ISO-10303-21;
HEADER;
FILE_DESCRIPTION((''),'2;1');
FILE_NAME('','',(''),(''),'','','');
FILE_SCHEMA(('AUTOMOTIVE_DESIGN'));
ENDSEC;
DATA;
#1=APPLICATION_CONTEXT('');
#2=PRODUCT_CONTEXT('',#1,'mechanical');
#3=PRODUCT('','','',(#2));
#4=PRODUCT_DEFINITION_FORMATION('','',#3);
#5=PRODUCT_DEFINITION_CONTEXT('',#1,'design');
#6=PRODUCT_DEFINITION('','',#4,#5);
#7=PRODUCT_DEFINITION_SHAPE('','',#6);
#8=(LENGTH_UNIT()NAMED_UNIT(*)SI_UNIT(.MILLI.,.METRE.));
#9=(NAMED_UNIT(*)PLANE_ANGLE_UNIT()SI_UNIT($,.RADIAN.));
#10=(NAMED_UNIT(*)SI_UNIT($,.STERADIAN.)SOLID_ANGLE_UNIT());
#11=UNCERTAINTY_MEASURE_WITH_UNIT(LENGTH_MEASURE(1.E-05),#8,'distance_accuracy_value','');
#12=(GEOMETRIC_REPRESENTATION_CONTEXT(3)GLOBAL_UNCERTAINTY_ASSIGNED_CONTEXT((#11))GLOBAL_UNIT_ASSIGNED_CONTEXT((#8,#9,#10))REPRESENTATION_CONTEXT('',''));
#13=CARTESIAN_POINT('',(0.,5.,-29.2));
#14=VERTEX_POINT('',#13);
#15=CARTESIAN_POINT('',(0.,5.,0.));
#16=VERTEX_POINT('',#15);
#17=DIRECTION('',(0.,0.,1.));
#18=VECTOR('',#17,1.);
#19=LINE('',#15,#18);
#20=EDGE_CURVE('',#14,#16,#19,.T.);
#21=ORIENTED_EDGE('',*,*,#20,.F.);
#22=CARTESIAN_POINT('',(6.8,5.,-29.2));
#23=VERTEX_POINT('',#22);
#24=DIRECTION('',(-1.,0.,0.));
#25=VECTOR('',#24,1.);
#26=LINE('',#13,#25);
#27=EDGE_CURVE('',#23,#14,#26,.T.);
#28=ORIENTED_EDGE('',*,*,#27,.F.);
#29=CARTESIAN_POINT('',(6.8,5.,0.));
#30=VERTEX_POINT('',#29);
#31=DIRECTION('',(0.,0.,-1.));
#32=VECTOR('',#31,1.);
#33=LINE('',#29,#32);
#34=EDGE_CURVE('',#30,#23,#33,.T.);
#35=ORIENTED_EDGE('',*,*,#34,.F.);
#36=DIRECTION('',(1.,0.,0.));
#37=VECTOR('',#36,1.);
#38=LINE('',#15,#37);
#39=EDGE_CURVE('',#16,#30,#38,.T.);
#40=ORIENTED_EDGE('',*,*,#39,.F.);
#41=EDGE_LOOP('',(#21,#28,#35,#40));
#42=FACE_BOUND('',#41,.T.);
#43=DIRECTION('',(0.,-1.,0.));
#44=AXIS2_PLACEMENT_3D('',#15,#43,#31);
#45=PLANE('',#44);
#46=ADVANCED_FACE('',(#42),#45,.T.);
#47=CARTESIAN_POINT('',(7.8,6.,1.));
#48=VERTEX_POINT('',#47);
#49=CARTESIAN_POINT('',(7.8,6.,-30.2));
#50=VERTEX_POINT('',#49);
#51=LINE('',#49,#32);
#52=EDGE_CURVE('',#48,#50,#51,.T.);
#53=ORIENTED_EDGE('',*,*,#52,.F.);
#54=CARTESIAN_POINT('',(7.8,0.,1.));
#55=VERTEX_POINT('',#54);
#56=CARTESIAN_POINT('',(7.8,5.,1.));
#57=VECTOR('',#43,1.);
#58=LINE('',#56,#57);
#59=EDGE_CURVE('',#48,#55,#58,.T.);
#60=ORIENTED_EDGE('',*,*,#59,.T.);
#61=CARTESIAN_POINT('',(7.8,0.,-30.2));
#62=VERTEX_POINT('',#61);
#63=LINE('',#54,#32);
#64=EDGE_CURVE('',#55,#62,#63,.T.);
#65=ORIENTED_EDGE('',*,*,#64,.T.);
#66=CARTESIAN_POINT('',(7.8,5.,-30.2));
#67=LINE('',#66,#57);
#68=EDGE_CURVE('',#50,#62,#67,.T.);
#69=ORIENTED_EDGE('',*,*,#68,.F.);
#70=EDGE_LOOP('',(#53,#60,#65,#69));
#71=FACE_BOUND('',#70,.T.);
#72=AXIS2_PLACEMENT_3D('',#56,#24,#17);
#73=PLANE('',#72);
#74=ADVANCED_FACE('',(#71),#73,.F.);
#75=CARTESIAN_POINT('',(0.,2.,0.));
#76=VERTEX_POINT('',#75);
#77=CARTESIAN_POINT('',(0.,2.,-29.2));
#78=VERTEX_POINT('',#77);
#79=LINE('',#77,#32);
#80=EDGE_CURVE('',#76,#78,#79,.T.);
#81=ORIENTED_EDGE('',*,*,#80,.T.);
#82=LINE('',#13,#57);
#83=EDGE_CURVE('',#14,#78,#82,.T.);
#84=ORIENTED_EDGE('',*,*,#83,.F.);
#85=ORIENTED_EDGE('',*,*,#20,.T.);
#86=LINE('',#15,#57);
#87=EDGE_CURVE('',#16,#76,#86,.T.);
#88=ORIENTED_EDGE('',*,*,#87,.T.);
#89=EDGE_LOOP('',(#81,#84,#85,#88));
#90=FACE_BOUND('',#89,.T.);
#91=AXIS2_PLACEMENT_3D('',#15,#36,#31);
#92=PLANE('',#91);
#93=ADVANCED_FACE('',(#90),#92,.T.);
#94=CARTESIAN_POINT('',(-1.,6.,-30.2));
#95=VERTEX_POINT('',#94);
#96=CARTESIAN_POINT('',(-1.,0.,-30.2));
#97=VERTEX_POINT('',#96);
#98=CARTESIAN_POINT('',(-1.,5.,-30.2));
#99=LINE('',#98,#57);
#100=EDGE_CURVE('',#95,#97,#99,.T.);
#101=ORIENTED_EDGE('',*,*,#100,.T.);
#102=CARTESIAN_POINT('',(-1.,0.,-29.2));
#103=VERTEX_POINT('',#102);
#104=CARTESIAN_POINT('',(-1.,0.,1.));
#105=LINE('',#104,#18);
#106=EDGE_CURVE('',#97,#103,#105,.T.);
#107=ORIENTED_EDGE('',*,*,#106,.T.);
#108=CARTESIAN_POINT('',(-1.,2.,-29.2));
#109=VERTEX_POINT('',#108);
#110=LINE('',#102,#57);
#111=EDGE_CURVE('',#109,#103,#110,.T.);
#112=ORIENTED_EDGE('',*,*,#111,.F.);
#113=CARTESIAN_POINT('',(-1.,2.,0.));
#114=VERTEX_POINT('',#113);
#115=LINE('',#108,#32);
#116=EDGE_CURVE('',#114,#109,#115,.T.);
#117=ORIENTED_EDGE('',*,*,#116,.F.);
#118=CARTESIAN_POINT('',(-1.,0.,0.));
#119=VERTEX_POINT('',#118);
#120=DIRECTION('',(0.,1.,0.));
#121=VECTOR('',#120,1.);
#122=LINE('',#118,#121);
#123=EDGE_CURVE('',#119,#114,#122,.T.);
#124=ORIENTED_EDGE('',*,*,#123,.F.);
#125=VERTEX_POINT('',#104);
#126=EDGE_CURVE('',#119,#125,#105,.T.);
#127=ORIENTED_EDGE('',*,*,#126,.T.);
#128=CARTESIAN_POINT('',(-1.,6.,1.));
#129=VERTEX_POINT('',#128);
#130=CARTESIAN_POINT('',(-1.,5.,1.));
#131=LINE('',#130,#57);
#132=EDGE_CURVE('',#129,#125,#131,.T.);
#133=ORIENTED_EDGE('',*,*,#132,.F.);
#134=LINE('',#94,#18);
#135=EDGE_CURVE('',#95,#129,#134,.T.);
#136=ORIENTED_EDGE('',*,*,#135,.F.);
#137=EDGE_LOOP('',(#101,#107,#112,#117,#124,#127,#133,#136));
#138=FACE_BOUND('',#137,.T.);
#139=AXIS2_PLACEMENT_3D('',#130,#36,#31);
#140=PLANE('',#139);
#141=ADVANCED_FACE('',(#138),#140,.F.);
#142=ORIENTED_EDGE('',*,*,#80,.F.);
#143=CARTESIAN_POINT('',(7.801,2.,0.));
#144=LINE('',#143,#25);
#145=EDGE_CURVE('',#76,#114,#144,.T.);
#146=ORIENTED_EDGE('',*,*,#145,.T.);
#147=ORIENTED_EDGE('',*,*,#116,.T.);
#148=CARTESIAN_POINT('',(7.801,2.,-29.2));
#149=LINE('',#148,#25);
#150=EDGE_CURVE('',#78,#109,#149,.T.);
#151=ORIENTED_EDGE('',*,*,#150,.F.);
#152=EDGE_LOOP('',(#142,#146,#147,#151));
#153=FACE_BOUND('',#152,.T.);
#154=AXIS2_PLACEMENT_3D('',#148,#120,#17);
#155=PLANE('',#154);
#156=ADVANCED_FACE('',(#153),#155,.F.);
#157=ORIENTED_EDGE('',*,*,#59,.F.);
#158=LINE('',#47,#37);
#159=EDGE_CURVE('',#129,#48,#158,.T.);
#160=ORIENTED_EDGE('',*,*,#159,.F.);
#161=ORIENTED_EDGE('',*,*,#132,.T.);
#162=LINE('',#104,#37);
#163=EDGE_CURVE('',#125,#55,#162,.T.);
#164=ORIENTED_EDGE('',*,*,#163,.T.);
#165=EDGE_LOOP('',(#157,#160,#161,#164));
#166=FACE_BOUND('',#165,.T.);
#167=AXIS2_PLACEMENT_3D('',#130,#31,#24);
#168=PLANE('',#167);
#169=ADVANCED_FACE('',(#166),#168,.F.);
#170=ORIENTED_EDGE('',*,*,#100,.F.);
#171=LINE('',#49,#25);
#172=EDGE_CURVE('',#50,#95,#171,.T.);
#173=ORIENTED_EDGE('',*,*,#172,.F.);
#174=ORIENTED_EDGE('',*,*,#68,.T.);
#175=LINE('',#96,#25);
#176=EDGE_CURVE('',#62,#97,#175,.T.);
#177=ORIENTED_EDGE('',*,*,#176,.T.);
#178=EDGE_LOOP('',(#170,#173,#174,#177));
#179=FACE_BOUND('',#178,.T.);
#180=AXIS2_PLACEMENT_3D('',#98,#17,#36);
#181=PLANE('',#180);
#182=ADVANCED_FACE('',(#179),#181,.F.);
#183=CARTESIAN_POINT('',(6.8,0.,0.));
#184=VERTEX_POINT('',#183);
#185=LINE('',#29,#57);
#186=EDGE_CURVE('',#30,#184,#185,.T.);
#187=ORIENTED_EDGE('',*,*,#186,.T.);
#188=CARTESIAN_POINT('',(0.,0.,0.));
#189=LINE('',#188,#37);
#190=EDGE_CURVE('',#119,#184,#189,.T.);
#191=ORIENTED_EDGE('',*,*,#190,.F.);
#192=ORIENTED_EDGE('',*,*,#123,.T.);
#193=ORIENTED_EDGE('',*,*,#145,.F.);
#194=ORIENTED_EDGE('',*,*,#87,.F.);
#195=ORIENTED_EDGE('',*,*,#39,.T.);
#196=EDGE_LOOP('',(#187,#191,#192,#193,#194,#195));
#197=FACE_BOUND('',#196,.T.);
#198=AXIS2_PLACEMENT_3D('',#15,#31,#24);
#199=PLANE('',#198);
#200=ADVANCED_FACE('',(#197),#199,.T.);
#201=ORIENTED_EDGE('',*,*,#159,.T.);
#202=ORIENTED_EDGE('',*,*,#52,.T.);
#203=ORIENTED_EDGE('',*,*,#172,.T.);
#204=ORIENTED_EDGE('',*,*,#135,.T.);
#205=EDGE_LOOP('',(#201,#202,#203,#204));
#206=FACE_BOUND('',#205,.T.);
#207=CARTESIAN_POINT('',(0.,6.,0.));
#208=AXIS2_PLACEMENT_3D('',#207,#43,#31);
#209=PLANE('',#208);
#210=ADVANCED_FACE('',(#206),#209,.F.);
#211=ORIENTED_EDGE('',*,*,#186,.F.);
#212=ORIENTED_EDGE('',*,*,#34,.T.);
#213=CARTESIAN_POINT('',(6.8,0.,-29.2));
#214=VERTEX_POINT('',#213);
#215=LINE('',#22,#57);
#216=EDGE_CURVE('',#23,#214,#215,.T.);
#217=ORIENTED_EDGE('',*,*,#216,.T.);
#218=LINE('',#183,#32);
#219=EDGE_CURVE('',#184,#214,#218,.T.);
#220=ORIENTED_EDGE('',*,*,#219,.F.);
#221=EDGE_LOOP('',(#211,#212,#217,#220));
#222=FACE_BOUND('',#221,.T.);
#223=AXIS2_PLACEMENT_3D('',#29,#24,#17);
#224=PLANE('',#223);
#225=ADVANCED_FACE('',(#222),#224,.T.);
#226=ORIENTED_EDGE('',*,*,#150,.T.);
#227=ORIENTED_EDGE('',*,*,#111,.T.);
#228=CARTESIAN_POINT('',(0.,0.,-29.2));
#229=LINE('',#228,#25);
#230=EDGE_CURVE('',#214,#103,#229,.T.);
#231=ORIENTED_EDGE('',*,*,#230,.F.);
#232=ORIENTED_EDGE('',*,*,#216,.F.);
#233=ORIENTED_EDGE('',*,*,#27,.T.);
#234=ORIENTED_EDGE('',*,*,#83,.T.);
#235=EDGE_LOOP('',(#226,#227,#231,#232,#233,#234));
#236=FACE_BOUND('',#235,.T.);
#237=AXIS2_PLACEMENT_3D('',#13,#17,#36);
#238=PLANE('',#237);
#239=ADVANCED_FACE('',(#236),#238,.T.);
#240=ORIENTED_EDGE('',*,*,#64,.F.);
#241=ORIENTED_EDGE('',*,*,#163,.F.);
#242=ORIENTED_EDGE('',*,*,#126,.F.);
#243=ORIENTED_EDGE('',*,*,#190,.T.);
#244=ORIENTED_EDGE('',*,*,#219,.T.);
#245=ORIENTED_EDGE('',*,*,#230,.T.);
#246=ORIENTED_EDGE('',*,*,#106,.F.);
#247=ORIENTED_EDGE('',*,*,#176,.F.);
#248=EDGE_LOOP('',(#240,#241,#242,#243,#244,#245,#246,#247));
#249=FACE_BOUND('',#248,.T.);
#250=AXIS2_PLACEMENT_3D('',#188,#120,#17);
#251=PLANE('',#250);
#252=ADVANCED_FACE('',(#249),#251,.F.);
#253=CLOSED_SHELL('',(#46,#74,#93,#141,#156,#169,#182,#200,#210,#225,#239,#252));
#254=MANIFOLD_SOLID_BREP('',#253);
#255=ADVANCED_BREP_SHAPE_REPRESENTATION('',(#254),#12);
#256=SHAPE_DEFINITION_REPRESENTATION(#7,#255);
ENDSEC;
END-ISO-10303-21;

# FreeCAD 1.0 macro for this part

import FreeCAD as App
import Part
import Sketcher

V = App.Vector

doc = App.newDocument("Part")
body = doc.addObject("PartDesign::Body", "Body")

sketch1 = doc.addObject("Sketcher::SketchObject", "Sketch")
body.addObject(sketch1)
sketch1.AttachmentSupport = (doc.XZ_Plane, [""])
sketch1.MapMode = "FlatFace"
sketch1.addGeometry(Part.LineSegment(V(-1, -30, 0), V(-1, 1, 0)), False)
sketch1.addGeometry(Part.LineSegment(V(-1, 1, 0), V(8, 1, 0)), False)
sketch1.addGeometry(Part.LineSegment(V(8, 1, 0), V(8, -30, 0)), False)
sketch1.addGeometry(Part.LineSegment(V(8, -30, 0), V(-1, -30, 0)), False)
sketch1.addGeometry(Part.LineSegment(V(7, 0, 0), V(0, 0, 0)), False)
sketch1.addGeometry(Part.LineSegment(V(0, 0, 0), V(0, -29, 0)), False)
sketch1.addGeometry(Part.LineSegment(V(0, -29, 0), V(7, -29, 0)), False)
sketch1.addGeometry(Part.LineSegment(V(7, -29, 0), V(7, 0, 0)), False)
sketch1.addConstraint(Sketcher.Constraint("Coincident", 0, 2, 1, 1))
sketch1.addConstraint(Sketcher.Constraint("Coincident", 1, 2, 2, 1))
sketch1.addConstraint(Sketcher.Constraint("Coincident", 2, 2, 3, 1))
sketch1.addConstraint(Sketcher.Constraint("Coincident", 3, 2, 0, 1))
sketch1.addConstraint(Sketcher.Constraint("Coincident", 4, 2, 5, 1))
sketch1.addConstraint(Sketcher.Constraint("Coincident", 5, 2, 6, 1))
sketch1.addConstraint(Sketcher.Constraint("Coincident", 6, 2, 7, 1))
sketch1.addConstraint(Sketcher.Constraint("Coincident", 7, 2, 4, 1))
sketch1.addConstraint(Sketcher.Constraint("Vertical", 0))
sketch1.addConstraint(Sketcher.Constraint("Horizontal", 1))
sketch1.addConstraint(Sketcher.Constraint("Vertical", 2))
sketch1.addConstraint(Sketcher.Constraint("Horizontal", 3))
sketch1.addConstraint(Sketcher.Constraint("Horizontal", 4))
sketch1.addConstraint(Sketcher.Constraint("Vertical", 5))
sketch1.addConstraint(Sketcher.Constraint("Horizontal", 6))
sketch1.addConstraint(Sketcher.Constraint("Vertical", 7))
sketch1.addConstraint(Sketcher.Constraint("Coincident", 4, 2, -1, 1))
sketch1.addConstraint(Sketcher.Constraint("DistanceX", 1, 1, 1, 2, 8.8))
sketch1.addConstraint(Sketcher.Constraint("DistanceX", 4, 2, 4, 1, 6.8))
sketch1.addConstraint(Sketcher.Constraint("DistanceY", 0, 1, 0, 2, 31.2))
sketch1.addConstraint(Sketcher.Constraint("DistanceY", 5, 2, 5, 1, 29.2))
sketch1.addConstraint(Sketcher.Constraint("DistanceX", 0, 2, -1, 1, 1.0))
sketch1.addConstraint(Sketcher.Constraint("DistanceY", -1, 1, 0, 2, 1.0))
pad1 = doc.addObject("PartDesign::Pad", "Pad")
body.addObject(pad1)
pad1.Profile = sketch1
pad1.Length = 5
pad1.Reversed = True

sketch2 = doc.addObject("Sketcher::SketchObject", "Sketch001")
body.addObject(sketch2)
sketch2.AttachmentSupport = (doc.XZ_Plane, [""])
sketch2.MapMode = "FlatFace"
sketch2.AttachmentOffset = App.Placement(V(0, 0, -5), App.Rotation())
sketch2.addGeometry(Part.LineSegment(V(-1, -30, 0), V(-1, 1, 0)), False)
sketch2.addGeometry(Part.LineSegment(V(-1, 1, 0), V(8, 1, 0)), False)
sketch2.addGeometry(Part.LineSegment(V(8, 1, 0), V(8, -30, 0)), False)
sketch2.addGeometry(Part.LineSegment(V(8, -30, 0), V(-1, -30, 0)), False)
sketch2.addConstraint(Sketcher.Constraint("Coincident", 0, 2, 1, 1))
sketch2.addConstraint(Sketcher.Constraint("Coincident", 1, 2, 2, 1))
sketch2.addConstraint(Sketcher.Constraint("Coincident", 2, 2, 3, 1))
sketch2.addConstraint(Sketcher.Constraint("Coincident", 3, 2, 0, 1))
sketch2.addConstraint(Sketcher.Constraint("Vertical", 0))
sketch2.addConstraint(Sketcher.Constraint("Horizontal", 1))
sketch2.addConstraint(Sketcher.Constraint("Vertical", 2))
sketch2.addConstraint(Sketcher.Constraint("Horizontal", 3))
sketch2.addConstraint(Sketcher.Constraint("DistanceX", 1, 1, 1, 2, 8.8))
sketch2.addConstraint(Sketcher.Constraint("DistanceY", 0, 1, 0, 2, 31.2))
sketch2.addConstraint(Sketcher.Constraint("DistanceX", 0, 2, -1, 1, 1.0))
sketch2.addConstraint(Sketcher.Constraint("DistanceY", -1, 1, 0, 2, 1.0))
pad2 = doc.addObject("PartDesign::Pad", "Pad001")
body.addObject(pad2)
pad2.Profile = sketch2
pad2.Length = 1
pad2.Reversed = True

sketch3 = doc.addObject("Sketcher::SketchObject", "Sketch002")
body.addObject(sketch3)
sketch3.AttachmentSupport = (doc.YZ_Plane, [""])
sketch3.MapMode = "FlatFace"
sketch3.AttachmentOffset = App.Placement(V(0, 0, -1), App.Rotation())
sketch3.addGeometry(Part.LineSegment(V(2, -29.2, 0), V(0, -29.2, 0)), False)
sketch3.addGeometry(Part.LineSegment(V(0, -29.2, 0), V(0, 0, 0)), False)
sketch3.addGeometry(Part.LineSegment(V(0, 0, 0), V(2, 0, 0)), False)
sketch3.addGeometry(Part.LineSegment(V(2, 0, 0), V(2, -29.2, 0)), False)
sketch3.addConstraint(Sketcher.Constraint("Coincident", 0, 2, 1, 1))
sketch3.addConstraint(Sketcher.Constraint("Coincident", 1, 2, 2, 1))
sketch3.addConstraint(Sketcher.Constraint("Coincident", 2, 2, 3, 1))
sketch3.addConstraint(Sketcher.Constraint("Coincident", 3, 2, 0, 1))
sketch3.addConstraint(Sketcher.Constraint("Horizontal", 0))
sketch3.addConstraint(Sketcher.Constraint("Vertical", 1))
sketch3.addConstraint(Sketcher.Constraint("Horizontal", 2))
sketch3.addConstraint(Sketcher.Constraint("Vertical", 3))
sketch3.addConstraint(Sketcher.Constraint("Coincident", 1, 2, -1, 1))
sketch3.addConstraint(Sketcher.Constraint("DistanceX", 0, 2, 0, 1, 2.0))
sketch3.addConstraint(Sketcher.Constraint("DistanceY", 1, 1, 1, 2, 29.2))
pocket1 = doc.addObject("PartDesign::Pocket", "Pocket")
body.addObject(pocket1)
pocket1.Profile = sketch3
pocket1.Type = "UpToFirst"
pocket1.Reversed = True

doc.recompute()
